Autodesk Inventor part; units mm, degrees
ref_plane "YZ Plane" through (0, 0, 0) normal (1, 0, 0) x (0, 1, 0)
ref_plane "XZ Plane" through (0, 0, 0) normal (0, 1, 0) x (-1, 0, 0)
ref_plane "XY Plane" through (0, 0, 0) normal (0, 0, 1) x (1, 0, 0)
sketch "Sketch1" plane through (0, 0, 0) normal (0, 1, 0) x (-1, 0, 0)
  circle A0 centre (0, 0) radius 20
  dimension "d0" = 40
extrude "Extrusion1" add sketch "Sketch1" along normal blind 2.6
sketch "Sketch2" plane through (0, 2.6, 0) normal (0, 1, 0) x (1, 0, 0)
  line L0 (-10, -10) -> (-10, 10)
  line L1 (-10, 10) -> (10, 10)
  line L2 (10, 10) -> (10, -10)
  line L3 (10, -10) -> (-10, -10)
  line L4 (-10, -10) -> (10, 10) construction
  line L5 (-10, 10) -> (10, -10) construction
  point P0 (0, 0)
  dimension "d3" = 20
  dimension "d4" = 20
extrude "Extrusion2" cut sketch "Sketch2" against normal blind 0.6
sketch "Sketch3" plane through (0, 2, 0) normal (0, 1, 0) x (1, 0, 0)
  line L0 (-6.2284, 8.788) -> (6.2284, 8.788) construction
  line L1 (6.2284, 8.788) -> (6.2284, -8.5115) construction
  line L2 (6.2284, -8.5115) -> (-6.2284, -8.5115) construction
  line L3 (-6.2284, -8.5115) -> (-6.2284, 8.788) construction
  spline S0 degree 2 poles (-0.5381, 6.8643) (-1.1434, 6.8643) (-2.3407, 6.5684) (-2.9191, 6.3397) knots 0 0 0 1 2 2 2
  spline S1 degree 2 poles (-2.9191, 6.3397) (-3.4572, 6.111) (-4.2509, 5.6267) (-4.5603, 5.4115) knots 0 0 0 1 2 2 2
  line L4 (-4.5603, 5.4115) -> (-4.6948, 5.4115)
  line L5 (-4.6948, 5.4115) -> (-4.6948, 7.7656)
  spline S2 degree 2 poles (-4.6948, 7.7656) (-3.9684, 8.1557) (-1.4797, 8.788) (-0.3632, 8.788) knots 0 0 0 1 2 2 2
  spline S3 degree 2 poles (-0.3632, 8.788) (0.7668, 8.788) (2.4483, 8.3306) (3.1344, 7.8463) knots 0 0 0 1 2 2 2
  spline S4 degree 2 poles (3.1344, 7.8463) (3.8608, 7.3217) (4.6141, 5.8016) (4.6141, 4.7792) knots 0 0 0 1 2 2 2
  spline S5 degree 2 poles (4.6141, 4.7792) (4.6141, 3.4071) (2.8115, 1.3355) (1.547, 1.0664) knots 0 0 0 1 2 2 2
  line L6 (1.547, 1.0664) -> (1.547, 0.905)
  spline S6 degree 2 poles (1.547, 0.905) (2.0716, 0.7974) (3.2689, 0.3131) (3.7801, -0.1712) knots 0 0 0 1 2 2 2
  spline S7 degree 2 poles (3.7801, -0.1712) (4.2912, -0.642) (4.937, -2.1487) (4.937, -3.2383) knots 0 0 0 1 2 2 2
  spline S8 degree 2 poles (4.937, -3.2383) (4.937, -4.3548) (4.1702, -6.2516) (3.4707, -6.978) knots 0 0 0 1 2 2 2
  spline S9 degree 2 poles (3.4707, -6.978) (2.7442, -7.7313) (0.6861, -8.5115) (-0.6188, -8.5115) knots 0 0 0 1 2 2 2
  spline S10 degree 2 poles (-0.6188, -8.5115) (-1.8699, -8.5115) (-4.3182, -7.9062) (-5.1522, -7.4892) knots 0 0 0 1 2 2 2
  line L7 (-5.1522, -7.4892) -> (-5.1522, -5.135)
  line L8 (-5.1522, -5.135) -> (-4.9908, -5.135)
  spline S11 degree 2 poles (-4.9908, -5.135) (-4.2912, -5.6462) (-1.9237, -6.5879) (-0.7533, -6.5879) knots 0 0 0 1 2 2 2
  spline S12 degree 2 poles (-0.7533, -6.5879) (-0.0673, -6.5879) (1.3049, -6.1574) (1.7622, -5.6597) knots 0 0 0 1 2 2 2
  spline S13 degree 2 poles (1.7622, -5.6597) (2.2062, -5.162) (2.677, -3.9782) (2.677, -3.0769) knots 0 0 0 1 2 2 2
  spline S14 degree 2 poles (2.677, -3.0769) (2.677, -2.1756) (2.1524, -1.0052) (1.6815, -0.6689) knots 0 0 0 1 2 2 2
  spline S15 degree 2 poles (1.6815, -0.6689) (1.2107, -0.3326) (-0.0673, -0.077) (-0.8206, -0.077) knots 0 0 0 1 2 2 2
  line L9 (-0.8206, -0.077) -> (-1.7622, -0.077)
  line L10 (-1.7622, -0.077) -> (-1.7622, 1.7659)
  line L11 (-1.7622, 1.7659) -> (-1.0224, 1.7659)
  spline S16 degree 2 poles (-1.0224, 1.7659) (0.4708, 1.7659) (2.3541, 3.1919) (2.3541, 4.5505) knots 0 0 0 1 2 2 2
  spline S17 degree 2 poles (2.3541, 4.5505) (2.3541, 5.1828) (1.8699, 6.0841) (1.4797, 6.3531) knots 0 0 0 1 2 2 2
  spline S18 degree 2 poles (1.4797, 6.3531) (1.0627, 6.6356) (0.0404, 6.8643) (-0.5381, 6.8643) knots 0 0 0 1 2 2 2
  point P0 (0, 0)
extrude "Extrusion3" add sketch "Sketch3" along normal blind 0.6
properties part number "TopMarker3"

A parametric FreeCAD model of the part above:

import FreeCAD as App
import Part
import Sketcher
from FreeCAD import Vector


def add_polygon(sketch, points):
    """Adds a closed chain of lines whose ends are joined by coincident constraints."""
    first, n = sketch.GeometryCount, len(points)
    for a, b in zip(points, points[1:] + points[:1]):
        sketch.addGeometry(Part.LineSegment(App.Vector(*a, 0), App.Vector(*b, 0)), False)
    for i in range(n):
        sketch.addConstraint(Sketcher.Constraint("Coincident", first + i, 2, first + (i + 1) % n, 1))

doc = App.newDocument("Part")
params = doc.addObject("Spreadsheet::Sheet", "Params")
for row, (alias, value) in enumerate([
    ("sketch1_diameter", "40 mm"),
    ("pad1_length", "2.6 mm"),
    ("sketch2_width", "20 mm"),
    ("pocket1_length", "0.6 mm"),
    ("pad2_length", "0.6 mm"),
], start=1):
    params.set(f"A{row}", alias)
    params.set(f"B{row}", "=" + value)
    params.setAlias(f"B{row}", alias)

body = doc.addObject("PartDesign::Body", "Body")

# Sketch on XZ plane
sketch1 = doc.addObject("Sketcher::SketchObject", "Sketch")
body.addObject(sketch1)
sketch1.AttachmentSupport = (doc.XZ_Plane, [""])
sketch1.MapMode = "FlatFace"
sketch1.addGeometry(Part.Circle(Vector(0, 0, 0), Vector(0, 0, 1), 20), False)
sketch1.addConstraint([
    Sketcher.Constraint("Coincident", 0, 3, -1, 1),
    Sketcher.Constraint("Diameter", 0, 40.0),
])
sketch1.setExpression("Constraints[1]", "Params.sketch1_diameter")
pad1 = doc.addObject("PartDesign::Pad", "Pad")
body.addObject(pad1)
pad1.Profile = sketch1
pad1.setExpression("Length", "Params.pad1_length")
pad1.Reversed = True

# Sketch on XZ plane
sketch2 = doc.addObject("Sketcher::SketchObject", "Sketch001")
body.addObject(sketch2)
sketch2.AttachmentSupport = (doc.XZ_Plane, [""])
sketch2.MapMode = "FlatFace"
sketch2.AttachmentOffset = App.Placement(Vector(0, 0, -2.6), App.Rotation())
add_polygon(sketch2, [(-10, -10), (-10, 10), (10, 10), (10, -10)])  # lines 0-3
sketch2.addConstraint([
    Sketcher.Constraint("Vertical", 0),
    Sketcher.Constraint("Horizontal", 1),
    Sketcher.Constraint("Vertical", 2),
    Sketcher.Constraint("Horizontal", 3),
    Sketcher.Constraint("Symmetric", 0, 2, 2, 2, -1, 1),
    Sketcher.Constraint("Equal", 3, 0),
    Sketcher.Constraint("DistanceX", 1, 1, 1, 2, 20.0),
])
sketch2.setExpression("Constraints[10]", "Params.sketch2_width")
pocket1 = doc.addObject("PartDesign::Pocket", "Pocket")
body.addObject(pocket1)
pocket1.Profile = sketch2
pocket1.setExpression("Length", "Params.pocket1_length")
pocket1.Reversed = True

# Sketch on XZ plane
sketch3 = doc.addObject("Sketcher::SketchObject", "Sketch002")
body.addObject(sketch3)
sketch3.AttachmentSupport = (doc.XZ_Plane, [""])
sketch3.MapMode = "FlatFace"
sketch3.AttachmentOffset = App.Placement(Vector(0, 0, -2), App.Rotation())
sketch3.addGeometry([
    Part.BSplineCurve([Vector(-0.5381, -6.8643, 0), Vector(-1.1434, -6.8643, 0), Vector(-2.3407, -6.5684, 0), Vector(-2.9191, -6.3397, 0)], [3, 1, 3], [0, 1, 2], False, 2, [1, 1, 1, 1], False),  # 0
    Part.BSplineCurve([Vector(1.4797, -6.3531, 0), Vector(1.0627, -6.6356, 0), Vector(0.0404, -6.8643, 0), Vector(-0.5381, -6.8643, 0)], [3, 1, 3], [0, 1, 2], False, 2, [1, 1, 1, 1], False),  # 1
    Part.BSplineCurve([Vector(2.3541, -4.5505, 0), Vector(2.3541, -5.1828, 0), Vector(1.8699, -6.0841, 0), Vector(1.4797, -6.3531, 0)], [3, 1, 3], [0, 1, 2], False, 2, [1, 1, 1, 1], False),  # 2
    Part.BSplineCurve([Vector(-1.0224, -1.7659, 0), Vector(0.4708, -1.7659, 0), Vector(2.3541, -3.1919, 0), Vector(2.3541, -4.5505, 0)], [3, 1, 3], [0, 1, 2], False, 2, [1, 1, 1, 1], False),  # 3
    Part.LineSegment(Vector(-1.0224, -1.7659, 0), Vector(-1.7622, -1.7659, 0)),  # 4
    Part.LineSegment(Vector(-1.7622, -1.7659, 0), Vector(-1.7622, 0.077, 0)),  # 5
    Part.LineSegment(Vector(-1.7622, 0.077, 0), Vector(-0.8206, 0.077, 0)),  # 6
    Part.BSplineCurve([Vector(1.6815, 0.6689, 0), Vector(1.2107, 0.3326, 0), Vector(-0.0673, 0.077, 0), Vector(-0.8206, 0.077, 0)], [3, 1, 3], [0, 1, 2], False, 2, [1, 1, 1, 1], False),  # 7
    Part.BSplineCurve([Vector(2.677, 3.0769, 0), Vector(2.677, 2.1756, 0), Vector(2.1524, 1.0052, 0), Vector(1.6815, 0.6689, 0)], [3, 1, 3], [0, 1, 2], False, 2, [1, 1, 1, 1], False),  # 8
    Part.BSplineCurve([Vector(1.7622, 5.6597, 0), Vector(2.2062, 5.162, 0), Vector(2.677, 3.9782, 0), Vector(2.677, 3.0769, 0)], [3, 1, 3], [0, 1, 2], False, 2, [1, 1, 1, 1], False),  # 9
    Part.BSplineCurve([Vector(-0.7533, 6.5879, 0), Vector(-0.0673, 6.5879, 0), Vector(1.3049, 6.1574, 0), Vector(1.7622, 5.6597, 0)], [3, 1, 3], [0, 1, 2], False, 2, [1, 1, 1, 1], False),  # 10
    Part.BSplineCurve([Vector(-4.9908, 5.135, 0), Vector(-4.2912, 5.6462, 0), Vector(-1.9237, 6.5879, 0), Vector(-0.7533, 6.5879, 0)], [3, 1, 3], [0, 1, 2], False, 2, [1, 1, 1, 1], False),  # 11
    Part.LineSegment(Vector(-4.9908, 5.135, 0), Vector(-5.1522, 5.135, 0)),  # 12
    Part.LineSegment(Vector(-5.1522, 5.135, 0), Vector(-5.1522, 7.4892, 0)),  # 13
    Part.BSplineCurve([Vector(-0.6188, 8.5115, 0), Vector(-1.8699, 8.5115, 0), Vector(-4.3182, 7.9062, 0), Vector(-5.1522, 7.4892, 0)], [3, 1, 3], [0, 1, 2], False, 2, [1, 1, 1, 1], False),  # 14
    Part.BSplineCurve([Vector(3.4707, 6.978, 0), Vector(2.7442, 7.7313, 0), Vector(0.6861, 8.5115, 0), Vector(-0.6188, 8.5115, 0)], [3, 1, 3], [0, 1, 2], False, 2, [1, 1, 1, 1], False),  # 15
    Part.BSplineCurve([Vector(4.937, 3.2383, 0), Vector(4.937, 4.3548, 0), Vector(4.1702, 6.2516, 0), Vector(3.4707, 6.978, 0)], [3, 1, 3], [0, 1, 2], False, 2, [1, 1, 1, 1], False),  # 16
    Part.BSplineCurve([Vector(3.7801, 0.1712, 0), Vector(4.2912, 0.642, 0), Vector(4.937, 2.1487, 0), Vector(4.937, 3.2383, 0)], [3, 1, 3], [0, 1, 2], False, 2, [1, 1, 1, 1], False),  # 17
    Part.BSplineCurve([Vector(1.547, -0.905, 0), Vector(2.0716, -0.7974, 0), Vector(3.2689, -0.3131, 0), Vector(3.7801, 0.1712, 0)], [3, 1, 3], [0, 1, 2], False, 2, [1, 1, 1, 1], False),  # 18
    Part.LineSegment(Vector(1.547, -0.905, 0), Vector(1.547, -1.0664, 0)),  # 19
    Part.BSplineCurve([Vector(4.6141, -4.7792, 0), Vector(4.6141, -3.4071, 0), Vector(2.8115, -1.3355, 0), Vector(1.547, -1.0664, 0)], [3, 1, 3], [0, 1, 2], False, 2, [1, 1, 1, 1], False),  # 20
    Part.BSplineCurve([Vector(3.1344, -7.8463, 0), Vector(3.8608, -7.3217, 0), Vector(4.6141, -5.8016, 0), Vector(4.6141, -4.7792, 0)], [3, 1, 3], [0, 1, 2], False, 2, [1, 1, 1, 1], False),  # 21
    Part.BSplineCurve([Vector(-0.3632, -8.788, 0), Vector(0.7668, -8.788, 0), Vector(2.4483, -8.3306, 0), Vector(3.1344, -7.8463, 0)], [3, 1, 3], [0, 1, 2], False, 2, [1, 1, 1, 1], False),  # 22
    Part.BSplineCurve([Vector(-4.6948, -7.7656, 0), Vector(-3.9684, -8.1557, 0), Vector(-1.4797, -8.788, 0), Vector(-0.3632, -8.788, 0)], [3, 1, 3], [0, 1, 2], False, 2, [1, 1, 1, 1], False),  # 23
    Part.LineSegment(Vector(-4.6948, -7.7656, 0), Vector(-4.6948, -5.4115, 0)),  # 24
    Part.LineSegment(Vector(-4.6948, -5.4115, 0), Vector(-4.5603, -5.4115, 0)),  # 25
    Part.BSplineCurve([Vector(-2.9191, -6.3397, 0), Vector(-3.4572, -6.111, 0), Vector(-4.2509, -5.6267, 0), Vector(-4.5603, -5.4115, 0)], [3, 1, 3], [0, 1, 2], False, 2, [1, 1, 1, 1], False),  # 26
], False)
sketch3.addConstraint([
    Sketcher.Constraint("Block", 0),
    Sketcher.Constraint("Block", 1),
    Sketcher.Constraint("Block", 2),
    Sketcher.Constraint("Block", 3),
    Sketcher.Constraint("Block", 7),
    Sketcher.Constraint("Block", 8),
    Sketcher.Constraint("Block", 9),
    Sketcher.Constraint("Block", 10),
    Sketcher.Constraint("Block", 11),
    Sketcher.Constraint("Block", 14),
    Sketcher.Constraint("Block", 15),
    Sketcher.Constraint("Block", 16),
    Sketcher.Constraint("Block", 17),
    Sketcher.Constraint("Block", 18),
    Sketcher.Constraint("Block", 20),
    Sketcher.Constraint("Block", 21),
    Sketcher.Constraint("Block", 22),
    Sketcher.Constraint("Block", 23),
    Sketcher.Constraint("Block", 26),
    Sketcher.Constraint("Coincident", 3, 1, 4, 1),
    Sketcher.Constraint("Coincident", 4, 2, 5, 1),
    Sketcher.Constraint("Coincident", 5, 2, 6, 1),
    Sketcher.Constraint("Coincident", 6, 2, 7, 2),
    Sketcher.Constraint("Coincident", 11, 1, 12, 1),
    Sketcher.Constraint("Coincident", 12, 2, 13, 1),
    Sketcher.Constraint("Coincident", 13, 2, 14, 2),
    Sketcher.Constraint("Coincident", 18, 1, 19, 1),
    Sketcher.Constraint("Coincident", 19, 2, 20, 2),
    Sketcher.Constraint("Coincident", 23, 1, 24, 1),
    Sketcher.Constraint("Coincident", 24, 2, 25, 1),
    Sketcher.Constraint("Coincident", 25, 2, 26, 2),
    Sketcher.Constraint("Horizontal", 4),
    Sketcher.Constraint("Vertical", 5),
    Sketcher.Constraint("Horizontal", 6),
    Sketcher.Constraint("Horizontal", 12),
    Sketcher.Constraint("Vertical", 13),
    Sketcher.Constraint("Vertical", 24),
    Sketcher.Constraint("Horizontal", 25),
    Sketcher.Constraint("DistanceX", 12, 2, 5, 2, 3.39),
])
pad2 = doc.addObject("PartDesign::Pad", "Pad001")
body.addObject(pad2)
pad2.Profile = sketch3
pad2.setExpression("Length", "Params.pad2_length")
pad2.Reversed = True

doc.recompute()
